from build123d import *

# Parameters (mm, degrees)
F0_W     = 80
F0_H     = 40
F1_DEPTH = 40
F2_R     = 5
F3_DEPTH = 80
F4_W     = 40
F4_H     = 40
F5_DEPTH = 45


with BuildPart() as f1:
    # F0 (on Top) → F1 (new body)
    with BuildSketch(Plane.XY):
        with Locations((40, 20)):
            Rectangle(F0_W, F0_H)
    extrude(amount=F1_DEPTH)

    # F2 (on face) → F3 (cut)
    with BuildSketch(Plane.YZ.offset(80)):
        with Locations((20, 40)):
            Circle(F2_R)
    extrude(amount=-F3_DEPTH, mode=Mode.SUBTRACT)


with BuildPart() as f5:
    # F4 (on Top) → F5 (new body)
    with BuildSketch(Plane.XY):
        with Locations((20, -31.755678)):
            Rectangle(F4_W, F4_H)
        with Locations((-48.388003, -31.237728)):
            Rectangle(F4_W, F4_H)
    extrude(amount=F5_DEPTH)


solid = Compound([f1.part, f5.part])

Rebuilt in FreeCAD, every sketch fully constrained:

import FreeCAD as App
import Part
import Sketcher

doc = App.newDocument("Part")
body = doc.addObject("PartDesign::Body", "Body")

sketch1 = doc.addObject("Sketcher::SketchObject", "Sketch")
body.addObject(sketch1)
sketch1.AttachmentSupport = (doc.XY_Plane, [""])
sketch1.MapMode = "FlatFace"
sketch1.addGeometry(Part.LineSegment(App.Vector(0, 40, 0), App.Vector(0, 0, 0)), False)
sketch1.addGeometry(Part.LineSegment(App.Vector(0, 0, 0), App.Vector(80, 0, 0)), False)
sketch1.addGeometry(Part.LineSegment(App.Vector(80, 0, 0), App.Vector(80, 40, 0)), False)
sketch1.addGeometry(Part.LineSegment(App.Vector(80, 40, 0), App.Vector(0, 40, 0)), False)
sketch1.addConstraint(Sketcher.Constraint("Coincident", 0, 2, 1, 1))
sketch1.addConstraint(Sketcher.Constraint("Coincident", 1, 2, 2, 1))
sketch1.addConstraint(Sketcher.Constraint("Coincident", 2, 2, 3, 1))
sketch1.addConstraint(Sketcher.Constraint("Coincident", 3, 2, 0, 1))
sketch1.addConstraint(Sketcher.Constraint("Vertical", 0))
sketch1.addConstraint(Sketcher.Constraint("Horizontal", 1))
sketch1.addConstraint(Sketcher.Constraint("Vertical", 2))
sketch1.addConstraint(Sketcher.Constraint("Horizontal", 3))
sketch1.addConstraint(Sketcher.Constraint("Coincident", 0, 2, -1, 1))
sketch1.addConstraint(Sketcher.Constraint("DistanceX", 1, 1, 1, 2, 80.0))
sketch1.addConstraint(Sketcher.Constraint("DistanceY", 0, 2, 0, 1, 40.0))
pad1 = doc.addObject("PartDesign::Pad", "Pad")
body.addObject(pad1)
pad1.Profile = sketch1
pad1.Length = 40

sketch2 = doc.addObject("Sketcher::SketchObject", "Sketch001")
body.addObject(sketch2)
sketch2.AttachmentSupport = (doc.YZ_Plane, [""])
sketch2.MapMode = "FlatFace"
sketch2.AttachmentOffset = App.Placement(App.Vector(0, 0, 80), App.Rotation())
sketch2.addGeometry(Part.Circle(App.Vector(20, 40, 0), App.Vector(0, 0, 1), 5), False)
sketch2.addConstraint(Sketcher.Constraint("Diameter", 0, 10.0))
sketch2.addConstraint(Sketcher.Constraint("DistanceX", -1, 1, 0, 3, 20.0))
sketch2.addConstraint(Sketcher.Constraint("DistanceY", -1, 1, 0, 3, 40.0))
pocket1 = doc.addObject("PartDesign::Pocket", "Pocket")
body.addObject(pocket1)
pocket1.Profile = sketch2
pocket1.Length = 80
body2 = doc.addObject("PartDesign::Body", "Body001")
body2.AllowCompound = True

sketch3 = doc.addObject("Sketcher::SketchObject", "Sketch002")
body2.addObject(sketch3)
sketch3.AttachmentSupport = (doc.getObject("XY_Plane001"), [""])
sketch3.MapMode = "FlatFace"
sketch3.addGeometry(Part.LineSegment(App.Vector(0, -12, 0), App.Vector(0, -52, 0)), False)
sketch3.addGeometry(Part.LineSegment(App.Vector(0, -52, 0), App.Vector(40, -52, 0)), False)
sketch3.addGeometry(Part.LineSegment(App.Vector(40, -52, 0), App.Vector(40, -12, 0)), False)
sketch3.addGeometry(Part.LineSegment(App.Vector(40, -12, 0), App.Vector(0, -12, 0)), False)
sketch3.addGeometry(Part.LineSegment(App.Vector(-68, -11, 0), App.Vector(-68, -51, 0)), False)
sketch3.addGeometry(Part.LineSegment(App.Vector(-68, -51, 0), App.Vector(-28, -51, 0)), False)
sketch3.addGeometry(Part.LineSegment(App.Vector(-28, -51, 0), App.Vector(-28, -11, 0)), False)
sketch3.addGeometry(Part.LineSegment(App.Vector(-28, -11, 0), App.Vector(-68, -11, 0)), False)
sketch3.addConstraint(Sketcher.Constraint("Coincident", 0, 2, 1, 1))
sketch3.addConstraint(Sketcher.Constraint("Coincident", 1, 2, 2, 1))
sketch3.addConstraint(Sketcher.Constraint("Coincident", 2, 2, 3, 1))
sketch3.addConstraint(Sketcher.Constraint("Coincident", 3, 2, 0, 1))
sketch3.addConstraint(Sketcher.Constraint("Coincident", 4, 2, 5, 1))
sketch3.addConstraint(Sketcher.Constraint("Coincident", 5, 2, 6, 1))
sketch3.addConstraint(Sketcher.Constraint("Coincident", 6, 2, 7, 1))
sketch3.addConstraint(Sketcher.Constraint("Coincident", 7, 2, 4, 1))
sketch3.addConstraint(Sketcher.Constraint("Vertical", 0))
sketch3.addConstraint(Sketcher.Constraint("Horizontal", 1))
sketch3.addConstraint(Sketcher.Constraint("Vertical", 2))
sketch3.addConstraint(Sketcher.Constraint("Horizontal", 3))
sketch3.addConstraint(Sketcher.Constraint("Vertical", 4))
sketch3.addConstraint(Sketcher.Constraint("Horizontal", 5))
sketch3.addConstraint(Sketcher.Constraint("Vertical", 6))
sketch3.addConstraint(Sketcher.Constraint("Horizontal", 7))
sketch3.addConstraint(Sketcher.Constraint("PointOnObject", 0, 2, -2))
sketch3.addConstraint(Sketcher.Constraint("Equal", 3, 5))
sketch3.addConstraint(Sketcher.Constraint("Equal", 7, 0))
sketch3.addConstraint(Sketcher.Constraint("Equal", 2, 4))
sketch3.addConstraint(Sketcher.Constraint("DistanceX", 1, 1, 1, 2, 40.0))
sketch3.addConstraint(Sketcher.Constraint("DistanceY", 0, 2, -1, 1, 51.755678))
sketch3.addConstraint(Sketcher.Constraint("DistanceY", 0, 2, 4, 2, 0.51795))
sketch3.addConstraint(Sketcher.Constraint("DistanceX", 4, 2, -1, 1, 68.388003))
pad2 = doc.addObject("PartDesign::Pad", "Pad001")
body2.addObject(pad2)
pad2.Profile = sketch3
pad2.Length = 45

doc.recompute()
